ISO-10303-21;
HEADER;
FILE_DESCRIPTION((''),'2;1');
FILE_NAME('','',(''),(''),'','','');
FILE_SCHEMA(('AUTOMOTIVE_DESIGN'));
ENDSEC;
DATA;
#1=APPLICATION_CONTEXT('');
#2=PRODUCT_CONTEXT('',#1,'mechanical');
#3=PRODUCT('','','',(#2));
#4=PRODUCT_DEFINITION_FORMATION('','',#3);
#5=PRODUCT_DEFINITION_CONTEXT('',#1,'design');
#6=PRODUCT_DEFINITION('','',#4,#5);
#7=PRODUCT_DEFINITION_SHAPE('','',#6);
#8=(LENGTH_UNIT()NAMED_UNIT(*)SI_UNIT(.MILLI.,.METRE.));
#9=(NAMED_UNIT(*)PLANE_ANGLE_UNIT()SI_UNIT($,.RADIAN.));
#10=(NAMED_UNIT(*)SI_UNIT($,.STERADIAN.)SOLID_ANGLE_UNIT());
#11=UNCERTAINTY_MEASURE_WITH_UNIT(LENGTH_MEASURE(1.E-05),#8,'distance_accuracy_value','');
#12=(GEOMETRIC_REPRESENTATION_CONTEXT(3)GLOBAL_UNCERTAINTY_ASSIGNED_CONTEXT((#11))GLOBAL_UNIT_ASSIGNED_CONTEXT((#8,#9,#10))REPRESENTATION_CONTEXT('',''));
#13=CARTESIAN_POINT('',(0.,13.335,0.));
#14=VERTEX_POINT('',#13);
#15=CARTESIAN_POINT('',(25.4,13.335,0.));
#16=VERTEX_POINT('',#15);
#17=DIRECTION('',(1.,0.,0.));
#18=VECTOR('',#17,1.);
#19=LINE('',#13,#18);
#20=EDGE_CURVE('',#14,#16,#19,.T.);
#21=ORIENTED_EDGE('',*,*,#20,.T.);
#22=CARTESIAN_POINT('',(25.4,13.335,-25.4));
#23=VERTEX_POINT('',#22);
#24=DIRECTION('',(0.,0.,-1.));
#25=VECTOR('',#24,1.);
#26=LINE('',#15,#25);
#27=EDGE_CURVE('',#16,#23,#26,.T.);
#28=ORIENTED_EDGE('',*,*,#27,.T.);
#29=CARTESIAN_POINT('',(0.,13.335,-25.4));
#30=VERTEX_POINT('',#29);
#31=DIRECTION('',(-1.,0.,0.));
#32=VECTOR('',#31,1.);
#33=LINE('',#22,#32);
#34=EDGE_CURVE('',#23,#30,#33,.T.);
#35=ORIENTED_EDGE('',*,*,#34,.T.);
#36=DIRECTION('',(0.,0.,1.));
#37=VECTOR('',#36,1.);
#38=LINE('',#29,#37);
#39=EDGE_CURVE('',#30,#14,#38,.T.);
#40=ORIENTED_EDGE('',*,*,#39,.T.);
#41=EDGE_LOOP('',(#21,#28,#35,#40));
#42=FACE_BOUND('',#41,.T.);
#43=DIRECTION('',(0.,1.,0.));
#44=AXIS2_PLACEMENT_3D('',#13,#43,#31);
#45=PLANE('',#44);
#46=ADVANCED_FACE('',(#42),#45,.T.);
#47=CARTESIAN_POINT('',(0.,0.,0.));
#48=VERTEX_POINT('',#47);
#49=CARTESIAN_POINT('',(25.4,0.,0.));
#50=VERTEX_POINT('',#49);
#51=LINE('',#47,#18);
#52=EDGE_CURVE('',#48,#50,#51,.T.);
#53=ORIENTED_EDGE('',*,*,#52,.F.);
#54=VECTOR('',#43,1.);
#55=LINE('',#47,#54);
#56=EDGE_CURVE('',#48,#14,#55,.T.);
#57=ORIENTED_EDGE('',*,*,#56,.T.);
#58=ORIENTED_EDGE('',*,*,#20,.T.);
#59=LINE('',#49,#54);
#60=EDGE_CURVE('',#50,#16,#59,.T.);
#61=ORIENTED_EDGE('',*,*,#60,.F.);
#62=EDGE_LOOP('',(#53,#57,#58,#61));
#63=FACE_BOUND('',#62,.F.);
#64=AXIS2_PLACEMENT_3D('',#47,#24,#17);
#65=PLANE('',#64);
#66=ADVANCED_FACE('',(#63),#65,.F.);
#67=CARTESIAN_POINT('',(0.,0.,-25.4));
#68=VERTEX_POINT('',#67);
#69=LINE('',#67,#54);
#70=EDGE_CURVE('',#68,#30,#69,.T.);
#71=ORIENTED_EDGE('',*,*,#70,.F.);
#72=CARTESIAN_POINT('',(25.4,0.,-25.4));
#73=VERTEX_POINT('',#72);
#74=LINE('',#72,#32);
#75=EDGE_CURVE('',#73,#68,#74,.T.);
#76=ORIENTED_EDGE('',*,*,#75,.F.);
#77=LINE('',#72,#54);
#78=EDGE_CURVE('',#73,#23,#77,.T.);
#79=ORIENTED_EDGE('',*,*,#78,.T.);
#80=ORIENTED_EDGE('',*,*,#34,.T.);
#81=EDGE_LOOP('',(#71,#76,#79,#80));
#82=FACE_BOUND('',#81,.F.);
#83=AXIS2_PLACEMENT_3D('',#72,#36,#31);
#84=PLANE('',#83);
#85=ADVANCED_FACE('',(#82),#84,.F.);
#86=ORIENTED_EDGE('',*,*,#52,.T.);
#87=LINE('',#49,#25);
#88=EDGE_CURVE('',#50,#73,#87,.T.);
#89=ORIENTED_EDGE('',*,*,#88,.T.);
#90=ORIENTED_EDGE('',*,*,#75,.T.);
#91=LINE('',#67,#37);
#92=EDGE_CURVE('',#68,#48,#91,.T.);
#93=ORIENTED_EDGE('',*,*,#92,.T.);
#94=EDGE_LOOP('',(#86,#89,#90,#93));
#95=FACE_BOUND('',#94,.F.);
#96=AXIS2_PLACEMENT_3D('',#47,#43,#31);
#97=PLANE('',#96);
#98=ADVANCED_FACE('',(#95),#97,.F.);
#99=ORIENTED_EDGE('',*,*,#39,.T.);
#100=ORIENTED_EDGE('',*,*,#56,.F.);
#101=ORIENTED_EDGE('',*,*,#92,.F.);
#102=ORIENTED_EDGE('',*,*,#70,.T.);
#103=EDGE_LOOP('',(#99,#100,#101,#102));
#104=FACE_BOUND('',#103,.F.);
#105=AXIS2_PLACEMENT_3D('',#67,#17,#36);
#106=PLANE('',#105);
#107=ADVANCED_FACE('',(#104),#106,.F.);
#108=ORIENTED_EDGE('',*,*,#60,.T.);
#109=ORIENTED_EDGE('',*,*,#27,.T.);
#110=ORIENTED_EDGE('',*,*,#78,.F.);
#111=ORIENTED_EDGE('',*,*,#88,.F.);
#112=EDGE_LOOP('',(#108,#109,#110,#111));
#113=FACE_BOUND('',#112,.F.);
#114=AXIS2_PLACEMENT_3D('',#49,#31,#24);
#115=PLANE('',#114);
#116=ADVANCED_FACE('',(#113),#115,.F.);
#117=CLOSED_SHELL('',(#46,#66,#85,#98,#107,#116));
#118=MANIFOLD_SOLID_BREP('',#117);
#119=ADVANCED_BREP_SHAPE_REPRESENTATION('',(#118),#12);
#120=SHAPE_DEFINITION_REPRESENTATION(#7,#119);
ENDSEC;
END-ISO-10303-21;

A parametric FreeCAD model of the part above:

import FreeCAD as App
import Part
import Sketcher
Q = App.Units.Quantity

doc = App.newDocument("Part")
body = doc.addObject("PartDesign::Body", "Body")

# Sketch on XZ plane
sketch1 = doc.addObject("Sketcher::SketchObject", "Sketch")
body.addObject(sketch1)
sketch1.AttachmentSupport = (doc.XZ_Plane, [""])
sketch1.MapMode = "FlatFace"
sketch1.addGeometry([
    Part.LineSegment(App.Vector(0, -25, 0), App.Vector(0, 0, 0)),
    Part.LineSegment(App.Vector(0, 0, 0), App.Vector(25, 0, 0)),
    Part.LineSegment(App.Vector(25, 0, 0), App.Vector(25, -25, 0)),
    Part.LineSegment(App.Vector(25, -25, 0), App.Vector(0, -25, 0)),
], False)
sketch1.addConstraint([
    Sketcher.Constraint("Coincident", 0, 2, 1, 1),
    Sketcher.Constraint("Coincident", 1, 2, 2, 1),
    Sketcher.Constraint("Coincident", 2, 2, 3, 1),
    Sketcher.Constraint("Coincident", 3, 2, 0, 1),
    Sketcher.Constraint("Vertical", 0),
    Sketcher.Constraint("Horizontal", 1),
    Sketcher.Constraint("Vertical", 2),
    Sketcher.Constraint("Horizontal", 3),
    Sketcher.Constraint("Coincident", 0, 2, -1, 1),
    Sketcher.Constraint("Equal", 3, 0),
    Sketcher.Constraint("DistanceX", 1, 1, 1, 2, Q("1 in")),
])
pad1 = doc.addObject("PartDesign::Pad", "Pad")
body.addObject(pad1)
pad1.Profile = sketch1
pad1.Length = Q("0.525 in")
pad1.Reversed = True

doc.recompute()
